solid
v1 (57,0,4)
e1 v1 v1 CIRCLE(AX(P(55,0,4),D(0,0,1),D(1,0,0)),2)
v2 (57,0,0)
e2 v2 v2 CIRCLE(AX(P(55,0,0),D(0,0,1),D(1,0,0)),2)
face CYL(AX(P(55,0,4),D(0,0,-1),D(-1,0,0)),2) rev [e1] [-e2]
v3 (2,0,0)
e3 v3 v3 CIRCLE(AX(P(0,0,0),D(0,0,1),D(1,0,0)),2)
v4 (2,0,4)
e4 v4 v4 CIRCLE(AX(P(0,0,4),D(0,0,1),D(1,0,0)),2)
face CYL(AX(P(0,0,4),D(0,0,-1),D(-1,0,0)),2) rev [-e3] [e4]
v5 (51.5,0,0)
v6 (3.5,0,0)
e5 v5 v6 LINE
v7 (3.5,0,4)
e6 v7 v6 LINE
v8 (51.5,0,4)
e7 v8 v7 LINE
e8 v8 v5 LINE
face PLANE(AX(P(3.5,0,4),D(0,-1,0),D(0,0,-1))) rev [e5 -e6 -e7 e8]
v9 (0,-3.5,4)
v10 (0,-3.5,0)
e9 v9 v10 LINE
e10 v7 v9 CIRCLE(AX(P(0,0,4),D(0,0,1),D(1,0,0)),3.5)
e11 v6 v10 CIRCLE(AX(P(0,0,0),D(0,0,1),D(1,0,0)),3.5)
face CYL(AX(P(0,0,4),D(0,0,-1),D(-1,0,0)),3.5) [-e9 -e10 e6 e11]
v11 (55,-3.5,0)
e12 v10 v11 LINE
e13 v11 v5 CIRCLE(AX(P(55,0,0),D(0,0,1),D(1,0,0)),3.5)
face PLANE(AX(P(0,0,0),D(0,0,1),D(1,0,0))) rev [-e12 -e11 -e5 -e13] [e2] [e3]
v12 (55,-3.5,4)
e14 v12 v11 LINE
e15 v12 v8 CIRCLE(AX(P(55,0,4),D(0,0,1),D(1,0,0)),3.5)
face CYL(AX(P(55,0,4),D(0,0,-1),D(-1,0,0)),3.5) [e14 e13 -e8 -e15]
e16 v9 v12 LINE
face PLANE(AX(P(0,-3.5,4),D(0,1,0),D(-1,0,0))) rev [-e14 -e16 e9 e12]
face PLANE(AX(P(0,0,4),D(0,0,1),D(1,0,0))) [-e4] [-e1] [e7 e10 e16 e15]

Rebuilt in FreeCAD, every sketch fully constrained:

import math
import FreeCAD as App
import Part
import Sketcher

V = App.Vector

doc = App.newDocument("Part")
body = doc.addObject("PartDesign::Body", "Body")

# Sketch on XY plane
sketch1 = doc.addObject("Sketcher::SketchObject", "Sketch")
body.addObject(sketch1)
sketch1.AttachmentSupport = (doc.XY_Plane, [""])
sketch1.MapMode = "FlatFace"
sketch1.addGeometry(Part.LineSegment(V(0, -3.5, 0), V(55, -3.5, 0)), False)
sketch1.addGeometry(Part.ArcOfCircle(Part.Circle(V(55, 0, 0), V(0, 0, 1), 3.5), math.radians(-90), math.radians(180)), False)
sketch1.addGeometry(Part.LineSegment(V(51.5, 0, 0), V(3.5, 0, 0)), False)
sketch1.addGeometry(Part.ArcOfCircle(Part.Circle(V(0, 0, 0), V(0, 0, 1), 3.5), math.radians(0), math.radians(270)), False)
sketch1.addGeometry(Part.Circle(V(0, 0, 0), V(0, 0, 1), 2), False)
sketch1.addGeometry(Part.Circle(V(55, 0, 0), V(0, 0, 1), 2), False)
sketch1.addConstraint(Sketcher.Constraint("Tangent", 0, 2, 1, 1))
sketch1.addConstraint(Sketcher.Constraint("Coincident", 1, 2, 2, 1))
sketch1.addConstraint(Sketcher.Constraint("Coincident", 2, 2, 3, 1))
sketch1.addConstraint(Sketcher.Constraint("Tangent", 3, 2, 0, 1))
sketch1.addConstraint(Sketcher.Constraint("Horizontal", 0))
sketch1.addConstraint(Sketcher.Constraint("Horizontal", 2))
sketch1.addConstraint(Sketcher.Constraint("Coincident", 3, 3, -1, 1))
sketch1.addConstraint(Sketcher.Constraint("Coincident", 4, 3, -1, 1))
sketch1.addConstraint(Sketcher.Constraint("Coincident", 5, 3, 1, 3))
sketch1.addConstraint(Sketcher.Constraint("Equal", 1, 3))
sketch1.addConstraint(Sketcher.Constraint("Equal", 4, 5))
sketch1.addConstraint(Sketcher.Constraint("PointOnObject", 1, 2, -1))
sketch1.addConstraint(Sketcher.Constraint("Diameter", 4, 4.0))
sketch1.addConstraint(Sketcher.Constraint("Radius", 1, 3.5))
sketch1.addConstraint(Sketcher.Constraint("DistanceX", 0, 1, 0, 2, 55.0))
pad1 = doc.addObject("PartDesign::Pad", "Pad")
body.addObject(pad1)
pad1.Profile = sketch1
pad1.Length = 4

doc.recompute()
